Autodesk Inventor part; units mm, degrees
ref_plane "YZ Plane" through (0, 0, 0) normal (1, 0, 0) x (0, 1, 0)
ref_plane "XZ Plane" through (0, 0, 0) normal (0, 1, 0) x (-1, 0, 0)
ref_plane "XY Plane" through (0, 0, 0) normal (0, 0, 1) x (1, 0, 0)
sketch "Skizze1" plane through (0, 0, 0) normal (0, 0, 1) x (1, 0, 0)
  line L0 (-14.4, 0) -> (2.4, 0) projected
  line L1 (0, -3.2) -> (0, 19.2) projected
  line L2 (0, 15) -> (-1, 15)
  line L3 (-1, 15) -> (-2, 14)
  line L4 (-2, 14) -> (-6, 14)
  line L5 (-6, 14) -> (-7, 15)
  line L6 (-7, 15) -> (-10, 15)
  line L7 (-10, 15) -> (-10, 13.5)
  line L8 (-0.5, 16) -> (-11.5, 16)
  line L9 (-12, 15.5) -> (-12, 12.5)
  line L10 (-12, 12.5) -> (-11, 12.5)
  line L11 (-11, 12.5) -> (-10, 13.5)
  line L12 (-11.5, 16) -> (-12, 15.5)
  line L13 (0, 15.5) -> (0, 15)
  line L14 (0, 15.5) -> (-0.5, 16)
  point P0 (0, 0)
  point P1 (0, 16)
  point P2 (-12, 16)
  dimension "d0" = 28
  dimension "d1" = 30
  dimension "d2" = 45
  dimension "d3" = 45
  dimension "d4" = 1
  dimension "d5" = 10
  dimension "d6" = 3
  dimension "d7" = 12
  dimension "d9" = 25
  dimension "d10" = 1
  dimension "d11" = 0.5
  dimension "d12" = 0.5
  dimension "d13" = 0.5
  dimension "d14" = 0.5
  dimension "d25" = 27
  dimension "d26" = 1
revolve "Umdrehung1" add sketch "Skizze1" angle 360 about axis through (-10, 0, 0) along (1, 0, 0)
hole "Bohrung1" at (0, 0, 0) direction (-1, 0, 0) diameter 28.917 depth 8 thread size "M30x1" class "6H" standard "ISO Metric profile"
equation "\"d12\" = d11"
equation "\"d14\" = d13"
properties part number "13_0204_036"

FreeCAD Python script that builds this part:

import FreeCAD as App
import Part
import Sketcher

V = App.Vector


def add_polygon(sketch, points):
    """Adds a closed chain of lines whose ends are joined by coincident constraints."""
    first, n = sketch.GeometryCount, len(points)
    for a, b in zip(points, points[1:] + points[:1]):
        sketch.addGeometry(Part.LineSegment(App.Vector(*a, 0), App.Vector(*b, 0)), False)
    for i in range(n):
        sketch.addConstraint(Sketcher.Constraint("Coincident", first + i, 2, first + (i + 1) % n, 1))

doc = App.newDocument("Part")
body = doc.addObject("PartDesign::Body", "Body")

# Sketch on XY plane
sketch1 = body.newObject("Sketcher::SketchObject", "Sketch")
sketch1.AttachmentSupport = (doc.getObject("XY_Plane"), [""])
sketch1.MapMode = "FlatFace"
add_polygon(sketch1, [(-1, 15), (0, 15), (0, 15.5), (-0.5, 16), (-11.5, 16), (-12, 15.5), (-12, 12.5), (-11, 12.5), (-10, 13.5), (-10, 15), (-7, 15), (-6, 14), (-2, 14)])  # lines 0-12
sketch1.addConstraint(Sketcher.Constraint("Horizontal", 0))
sketch1.addConstraint(Sketcher.Constraint("Vertical", 1))
sketch1.addConstraint(Sketcher.Constraint("Horizontal", 3))
sketch1.addConstraint(Sketcher.Constraint("Vertical", 5))
sketch1.addConstraint(Sketcher.Constraint("Horizontal", 6))
sketch1.addConstraint(Sketcher.Constraint("Vertical", 8))
sketch1.addConstraint(Sketcher.Constraint("Horizontal", 9))
sketch1.addConstraint(Sketcher.Constraint("Horizontal", 11))
sketch1.addConstraint(Sketcher.Constraint("PointOnObject", 0, 2, -2))
sketch1.addConstraint(Sketcher.Constraint("Perpendicular", 2, 4))
sketch1.addConstraint(Sketcher.Constraint("Parallel", 4, 7))
sketch1.addConstraint(Sketcher.Constraint("Perpendicular", 7, 10))
sketch1.addConstraint(Sketcher.Constraint("Perpendicular", 10, 12))
sketch1.addConstraint(Sketcher.Constraint("Horizontal", 1, 2, 4, 2))
sketch1.addConstraint(Sketcher.Constraint("Horizontal", 0, 2, 8, 2))
sketch1.addConstraint(Sketcher.Constraint("Equal", 0, 6))
sketch1.addConstraint(Sketcher.Constraint("Equal", 9, 5))
sketch1.addConstraint(Sketcher.Constraint("Equal", 2, 4))
sketch1.addConstraint(Sketcher.Constraint("Equal", 7, 10))
sketch1.addConstraint(Sketcher.Constraint("DistanceX", 0, 1, 0, 2, 1.0))
sketch1.addConstraint(Sketcher.Constraint("DistanceX", 9, 1, 9, 2, 3.0))
sketch1.addConstraint(Sketcher.Constraint("DistanceY", 1, 1, 1, 2, 0.5))
sketch1.addConstraint(Sketcher.Constraint("DistanceX", 4, 2, -1, 1, 12.0))
sketch1.addConstraint(Sketcher.Constraint("DistanceX", 7, 2, -1, 1, 10.0))
sketch1.addConstraint(Sketcher.Constraint("DistanceY", 0, 2, 2, 2, 1.0))
sketch1.addConstraint(Sketcher.Constraint("DistanceY", -1, 1, 0, 2, 15.0))
revolution = body.newObject("PartDesign::Revolution", "Revolution")
revolution.Profile = sketch1
revolution.ReferenceAxis = (sketch1, ["H_Axis"])
revolution.Angle = 360

# Sketch on YZ plane
sketch2 = body.newObject("Sketcher::SketchObject", "Sketch001")
sketch2.AttachmentSupport = (doc.getObject("YZ_Plane"), [""])
sketch2.MapMode = "FlatFace"
sketch2.addGeometry(Part.Circle(V(0, 0, 0), V(0, 0, 1), 14), False)
sketch2.addConstraint(Sketcher.Constraint("Coincident", 0, 3, -1, 1))
sketch2.addConstraint(Sketcher.Constraint("Diameter", 0, 28.917))
doc.recompute()
hole = body.newObject("PartDesign::Hole", "Hole")
hole.Profile = sketch2
hole.ThreadType = "None"
hole.Diameter = 28.917
hole.DepthType = "Dimension"
hole.Depth = 8
hole.DrillPoint = "Flat"

doc.recompute()
